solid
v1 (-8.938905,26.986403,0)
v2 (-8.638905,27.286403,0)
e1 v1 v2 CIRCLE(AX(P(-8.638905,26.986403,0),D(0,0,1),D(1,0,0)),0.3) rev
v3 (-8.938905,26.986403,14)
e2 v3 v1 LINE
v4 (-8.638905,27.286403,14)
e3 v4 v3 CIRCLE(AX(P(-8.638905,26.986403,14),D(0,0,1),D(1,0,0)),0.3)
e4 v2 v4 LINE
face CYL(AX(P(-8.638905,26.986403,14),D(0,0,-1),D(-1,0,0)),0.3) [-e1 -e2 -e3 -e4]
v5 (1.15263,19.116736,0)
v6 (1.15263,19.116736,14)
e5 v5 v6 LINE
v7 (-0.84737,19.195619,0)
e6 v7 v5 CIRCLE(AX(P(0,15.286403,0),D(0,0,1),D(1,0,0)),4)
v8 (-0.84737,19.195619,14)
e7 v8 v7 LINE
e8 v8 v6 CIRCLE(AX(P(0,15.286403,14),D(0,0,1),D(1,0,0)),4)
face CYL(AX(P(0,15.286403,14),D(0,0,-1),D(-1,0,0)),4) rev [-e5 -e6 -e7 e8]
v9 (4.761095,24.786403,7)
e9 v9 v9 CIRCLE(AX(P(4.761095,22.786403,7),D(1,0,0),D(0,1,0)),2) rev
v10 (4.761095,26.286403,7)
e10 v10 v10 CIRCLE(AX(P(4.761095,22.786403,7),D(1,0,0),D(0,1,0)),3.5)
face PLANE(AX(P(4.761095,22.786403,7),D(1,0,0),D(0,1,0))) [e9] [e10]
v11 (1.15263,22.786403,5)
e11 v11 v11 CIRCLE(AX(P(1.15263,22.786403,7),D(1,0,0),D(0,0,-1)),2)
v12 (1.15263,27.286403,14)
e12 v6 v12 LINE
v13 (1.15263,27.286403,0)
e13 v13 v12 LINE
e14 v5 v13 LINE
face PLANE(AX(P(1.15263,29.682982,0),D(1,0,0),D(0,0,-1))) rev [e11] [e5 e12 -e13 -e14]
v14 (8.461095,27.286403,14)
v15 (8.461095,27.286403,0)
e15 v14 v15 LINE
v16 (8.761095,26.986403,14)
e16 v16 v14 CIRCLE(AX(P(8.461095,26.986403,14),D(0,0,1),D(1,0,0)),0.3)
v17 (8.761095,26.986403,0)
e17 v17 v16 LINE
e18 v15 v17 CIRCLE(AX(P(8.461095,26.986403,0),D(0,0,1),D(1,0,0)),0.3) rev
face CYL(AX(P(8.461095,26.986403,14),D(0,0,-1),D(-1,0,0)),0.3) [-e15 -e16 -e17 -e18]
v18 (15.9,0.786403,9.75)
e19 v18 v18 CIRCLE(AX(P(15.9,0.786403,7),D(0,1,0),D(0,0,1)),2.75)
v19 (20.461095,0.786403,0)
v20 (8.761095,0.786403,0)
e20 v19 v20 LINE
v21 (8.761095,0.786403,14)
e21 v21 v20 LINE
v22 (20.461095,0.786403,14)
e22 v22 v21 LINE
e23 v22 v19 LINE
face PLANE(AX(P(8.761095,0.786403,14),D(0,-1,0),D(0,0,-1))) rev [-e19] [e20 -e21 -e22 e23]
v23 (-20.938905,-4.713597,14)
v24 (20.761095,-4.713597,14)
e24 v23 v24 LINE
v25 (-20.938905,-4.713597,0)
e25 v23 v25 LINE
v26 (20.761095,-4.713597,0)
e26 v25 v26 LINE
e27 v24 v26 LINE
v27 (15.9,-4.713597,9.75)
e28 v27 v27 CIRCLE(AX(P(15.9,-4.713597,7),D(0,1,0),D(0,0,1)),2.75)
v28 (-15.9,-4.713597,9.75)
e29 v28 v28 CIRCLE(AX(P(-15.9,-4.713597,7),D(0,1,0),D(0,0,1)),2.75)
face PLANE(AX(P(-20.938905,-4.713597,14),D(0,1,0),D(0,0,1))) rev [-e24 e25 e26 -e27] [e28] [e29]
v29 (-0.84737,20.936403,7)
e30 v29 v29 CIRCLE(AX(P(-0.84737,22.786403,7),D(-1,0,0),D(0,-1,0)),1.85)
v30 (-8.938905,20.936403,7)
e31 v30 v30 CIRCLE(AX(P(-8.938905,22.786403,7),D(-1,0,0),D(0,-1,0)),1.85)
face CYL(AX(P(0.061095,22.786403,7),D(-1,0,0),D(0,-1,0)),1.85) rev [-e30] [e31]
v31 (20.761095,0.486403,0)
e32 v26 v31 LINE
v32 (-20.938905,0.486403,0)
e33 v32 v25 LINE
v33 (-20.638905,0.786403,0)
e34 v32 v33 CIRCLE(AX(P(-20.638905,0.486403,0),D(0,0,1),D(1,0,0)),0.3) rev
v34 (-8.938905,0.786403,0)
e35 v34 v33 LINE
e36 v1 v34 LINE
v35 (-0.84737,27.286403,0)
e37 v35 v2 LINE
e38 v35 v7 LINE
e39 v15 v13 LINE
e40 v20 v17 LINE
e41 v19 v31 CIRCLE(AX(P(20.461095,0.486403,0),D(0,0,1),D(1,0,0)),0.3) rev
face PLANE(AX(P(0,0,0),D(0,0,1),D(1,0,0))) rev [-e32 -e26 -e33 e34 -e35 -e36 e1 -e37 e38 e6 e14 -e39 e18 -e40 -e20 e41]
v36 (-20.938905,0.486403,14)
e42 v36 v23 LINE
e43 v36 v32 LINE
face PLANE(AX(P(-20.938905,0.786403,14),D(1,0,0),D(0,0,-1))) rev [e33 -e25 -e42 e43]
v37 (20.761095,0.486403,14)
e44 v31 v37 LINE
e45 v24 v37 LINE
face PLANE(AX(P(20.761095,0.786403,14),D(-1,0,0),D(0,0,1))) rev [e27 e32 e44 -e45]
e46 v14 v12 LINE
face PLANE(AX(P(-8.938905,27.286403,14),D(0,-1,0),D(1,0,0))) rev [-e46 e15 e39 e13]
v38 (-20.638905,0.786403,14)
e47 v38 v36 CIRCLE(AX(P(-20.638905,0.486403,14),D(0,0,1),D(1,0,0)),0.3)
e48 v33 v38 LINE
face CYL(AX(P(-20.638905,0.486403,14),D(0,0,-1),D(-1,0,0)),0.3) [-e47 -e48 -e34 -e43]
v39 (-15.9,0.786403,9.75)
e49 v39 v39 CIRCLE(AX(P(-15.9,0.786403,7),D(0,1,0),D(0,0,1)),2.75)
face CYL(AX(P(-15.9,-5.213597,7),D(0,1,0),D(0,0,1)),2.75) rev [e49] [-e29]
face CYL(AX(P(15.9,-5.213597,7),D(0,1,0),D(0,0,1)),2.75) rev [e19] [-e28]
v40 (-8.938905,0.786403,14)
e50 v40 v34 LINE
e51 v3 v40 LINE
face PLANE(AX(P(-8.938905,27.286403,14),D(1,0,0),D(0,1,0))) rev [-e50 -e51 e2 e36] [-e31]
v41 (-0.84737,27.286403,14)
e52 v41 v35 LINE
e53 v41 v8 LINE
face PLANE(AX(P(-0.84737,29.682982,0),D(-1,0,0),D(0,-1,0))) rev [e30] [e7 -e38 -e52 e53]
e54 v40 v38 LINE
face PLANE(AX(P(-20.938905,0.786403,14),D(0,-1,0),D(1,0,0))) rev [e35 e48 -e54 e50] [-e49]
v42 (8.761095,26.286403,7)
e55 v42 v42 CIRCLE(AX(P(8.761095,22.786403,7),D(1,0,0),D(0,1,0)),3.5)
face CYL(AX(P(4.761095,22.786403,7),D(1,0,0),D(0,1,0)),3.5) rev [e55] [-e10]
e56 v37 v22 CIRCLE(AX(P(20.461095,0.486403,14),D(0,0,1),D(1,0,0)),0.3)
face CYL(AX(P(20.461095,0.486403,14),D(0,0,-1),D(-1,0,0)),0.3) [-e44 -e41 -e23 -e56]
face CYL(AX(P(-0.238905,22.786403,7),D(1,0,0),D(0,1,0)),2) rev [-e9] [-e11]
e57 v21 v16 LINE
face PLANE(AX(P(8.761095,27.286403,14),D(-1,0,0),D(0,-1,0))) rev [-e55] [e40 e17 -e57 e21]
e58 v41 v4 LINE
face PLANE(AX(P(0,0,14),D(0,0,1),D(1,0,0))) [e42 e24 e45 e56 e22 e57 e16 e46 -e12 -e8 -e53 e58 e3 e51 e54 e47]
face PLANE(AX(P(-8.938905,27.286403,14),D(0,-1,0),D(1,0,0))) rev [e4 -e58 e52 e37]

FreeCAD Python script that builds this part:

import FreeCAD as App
import Part
import Sketcher
from FreeCAD import Vector


def edges_at(feature, points):
    """Names of the edges that pass closest to the given points."""
    edges = feature.Shape.Edges
    near = lambda p: min(range(len(edges)), key=lambda i: edges[i].distToShape(Part.Vertex(*p))[0])
    return sorted({f"Edge{near(p) + 1}" for p in points})

doc = App.newDocument("Part")
params = doc.addObject("Spreadsheet::Sheet", "Params")
for row, (alias, value) in enumerate([
    ("sketch1_diameter", "8 mm"),
    ("sketch1_width", "12 mm"),
    ("sketch1_width2", "41.7 mm"),
    ("sketch1_height", "5.5 mm"),
    ("sketch1_height2", "26.5 mm"),
    ("pad1_length", "14 mm"),
    ("sketch2_diameter", "5.5 mm"),
    ("pocket1_length", "6 mm"),
    ("sketch3_width", "2 mm"),
    ("pocket2_length", "14 mm"),
    ("sketch4_diameter", "4 mm"),
    ("pocket3_length", "9 mm"),
    ("sketch5_diameter", "7 mm"),
    ("pocket4_length", "4 mm"),
    ("sketch6_diameter", "3.7 mm"),
    ("pocket5_length", "9 mm"),
    ("fillet_radius", "0.3 mm"),
], start=1):
    params.set(f"A{row}", alias)
    params.set(f"B{row}", "=" + value)
    params.setAlias(f"B{row}", alias)

body = doc.addObject("PartDesign::Body", "Body")

sketch1 = doc.addObject("Sketcher::SketchObject", "Sketch")
body.addObject(sketch1)
sketch1.AttachmentSupport = (doc.XY_Plane, [""])
sketch1.MapMode = "FlatFace"
sketch1.addGeometry(Part.LineSegment(Vector(-8.9, 0.8, 0), Vector(-20.9, 0.8, 0)), False)
sketch1.addGeometry(Part.LineSegment(Vector(-20.9, 0.8, 0), Vector(-20.9, -4.7, 0)), False)
sketch1.addGeometry(Part.LineSegment(Vector(-20.9, -4.7, 0), Vector(20.8, -4.7, 0)), False)
sketch1.addGeometry(Part.LineSegment(Vector(20.8, -4.7, 0), Vector(20.8, 0.8, 0)), False)
sketch1.addGeometry(Part.LineSegment(Vector(20.8, 0.8, 0), Vector(8.8, 0.8, 0)), False)
sketch1.addGeometry(Part.LineSegment(Vector(8.8, 0.8, 0), Vector(8.8, 27.3, 0)), False)
sketch1.addGeometry(Part.LineSegment(Vector(8.8, 27.3, 0), Vector(-8.9, 27.3, 0)), False)
sketch1.addGeometry(Part.LineSegment(Vector(-8.9, 27.3, 0), Vector(-8.9, 0.8, 0)), False)
sketch1.addGeometry(Part.Circle(Vector(0, 15.3, 0), Vector(0, 0, 1), 4), False)
sketch1.addConstraint(Sketcher.Constraint("Coincident", 0, 2, 1, 1))
sketch1.addConstraint(Sketcher.Constraint("Coincident", 1, 2, 2, 1))
sketch1.addConstraint(Sketcher.Constraint("Coincident", 2, 2, 3, 1))
sketch1.addConstraint(Sketcher.Constraint("Coincident", 3, 2, 4, 1))
sketch1.addConstraint(Sketcher.Constraint("Coincident", 4, 2, 5, 1))
sketch1.addConstraint(Sketcher.Constraint("Coincident", 5, 2, 6, 1))
sketch1.addConstraint(Sketcher.Constraint("Coincident", 6, 2, 7, 1))
sketch1.addConstraint(Sketcher.Constraint("Coincident", 7, 2, 0, 1))
sketch1.addConstraint(Sketcher.Constraint("Horizontal", 0))
sketch1.addConstraint(Sketcher.Constraint("Vertical", 1))
sketch1.addConstraint(Sketcher.Constraint("Horizontal", 2))
sketch1.addConstraint(Sketcher.Constraint("Vertical", 3))
sketch1.addConstraint(Sketcher.Constraint("Horizontal", 4))
sketch1.addConstraint(Sketcher.Constraint("Vertical", 5))
sketch1.addConstraint(Sketcher.Constraint("Horizontal", 6))
sketch1.addConstraint(Sketcher.Constraint("Vertical", 7))
sketch1.addConstraint(Sketcher.Constraint("PointOnObject", 8, 3, -2))
sketch1.addConstraint(Sketcher.Constraint("Horizontal", 0, 2, 3, 2))
sketch1.addConstraint(Sketcher.Constraint("Equal", 0, 4))
sketch1.addConstraint(Sketcher.Constraint("Diameter", 8, 8.0))
sketch1.addConstraint(Sketcher.Constraint("DistanceX", 0, 2, 0, 1, 12.0))
sketch1.addConstraint(Sketcher.Constraint("DistanceX", 2, 1, 2, 2, 41.7))
sketch1.addConstraint(Sketcher.Constraint("DistanceY", 1, 2, 1, 1, 5.5))
sketch1.addConstraint(Sketcher.Constraint("DistanceY", 5, 1, 5, 2, 26.5))
sketch1.addConstraint(Sketcher.Constraint("DistanceY", 1, 2, 8, 3, 20.0))
sketch1.addConstraint(Sketcher.Constraint("DistanceY", -1, 1, 8, 3, 15.286403))
sketch1.addConstraint(Sketcher.Constraint("DistanceX", 0, 2, -1, 1, 20.938905))
sketch1.setExpression("Constraints[19]", "Params.sketch1_diameter")
sketch1.setExpression("Constraints[20]", "Params.sketch1_width")
sketch1.setExpression("Constraints[21]", "Params.sketch1_width2")
sketch1.setExpression("Constraints[22]", "Params.sketch1_height")
sketch1.setExpression("Constraints[23]", "Params.sketch1_height2")
pad1 = doc.addObject("PartDesign::Pad", "Pad")
body.addObject(pad1)
pad1.Profile = sketch1
pad1.setExpression("Length", "Params.pad1_length")

sketch2 = doc.addObject("Sketcher::SketchObject", "Sketch001")
body.addObject(sketch2)
sketch2.AttachmentSupport = (doc.XZ_Plane, [""])
sketch2.MapMode = "FlatFace"
sketch2.AttachmentOffset = App.Placement(Vector(0, 0, -0.786403), App.Rotation())
sketch2.addGeometry(Part.Circle(Vector(-15.9, 7, 0), Vector(0, 0, 1), 2.8), False)
sketch2.addGeometry(Part.Circle(Vector(15.9, 7, 0), Vector(0, 0, 1), 2.8), False)
sketch2.addConstraint(Sketcher.Constraint("Equal", 0, 1))
sketch2.addConstraint(Sketcher.Constraint("Symmetric", 0, 3, 1, 3, -2))
sketch2.addConstraint(Sketcher.Constraint("Diameter", 0, 5.5))
sketch2.addConstraint(Sketcher.Constraint("DistanceY", -1, 1, 0, 3, 7.0))
sketch2.addConstraint(Sketcher.Constraint("DistanceX", 0, 3, -1, 1, 15.9))
sketch2.setExpression("Constraints[2]", "Params.sketch2_diameter")
pocket1 = doc.addObject("PartDesign::Pocket", "Pocket")
body.addObject(pocket1)
pocket1.Profile = sketch2
pocket1.setExpression("Length", "Params.pocket1_length")
pocket1.Reversed = True

sketch3 = doc.addObject("Sketcher::SketchObject", "Sketch002")
body.addObject(sketch3)
sketch3.AttachmentSupport = (doc.XY_Plane, [""])
sketch3.MapMode = "FlatFace"
sketch3.AttachmentOffset = App.Placement(Vector(0, 0, 14), App.Rotation())
sketch3.addGeometry(Part.LineSegment(Vector(-0.8, 29.7, 0), Vector(-0.8, 18.1, 0)), False)
sketch3.addGeometry(Part.LineSegment(Vector(-0.8, 18.1, 0), Vector(1.2, 18.1, 0)), False)
sketch3.addGeometry(Part.LineSegment(Vector(1.2, 18.1, 0), Vector(1.2, 29.7, 0)), False)
sketch3.addGeometry(Part.LineSegment(Vector(1.2, 29.7, 0), Vector(-0.8, 29.7, 0)), False)
sketch3.addConstraint(Sketcher.Constraint("Coincident", 0, 2, 1, 1))
sketch3.addConstraint(Sketcher.Constraint("Coincident", 1, 2, 2, 1))
sketch3.addConstraint(Sketcher.Constraint("Coincident", 2, 2, 3, 1))
sketch3.addConstraint(Sketcher.Constraint("Coincident", 3, 2, 0, 1))
sketch3.addConstraint(Sketcher.Constraint("Vertical", 0))
sketch3.addConstraint(Sketcher.Constraint("Horizontal", 1))
sketch3.addConstraint(Sketcher.Constraint("Vertical", 2))
sketch3.addConstraint(Sketcher.Constraint("Horizontal", 3))
sketch3.addConstraint(Sketcher.Constraint("DistanceX", 1, 1, 1, 2, 2.0))
sketch3.addConstraint(Sketcher.Constraint("DistanceY", 0, 2, 0, 1, 11.620769))
sketch3.addConstraint(Sketcher.Constraint("DistanceX", 0, 2, -1, 1, 0.84737))
sketch3.addConstraint(Sketcher.Constraint("DistanceY", -1, 1, 2, 2, 29.682982))
sketch3.setExpression("Constraints[8]", "Params.sketch3_width")
pocket2 = doc.addObject("PartDesign::Pocket", "Pocket001")
body.addObject(pocket2)
pocket2.Profile = sketch3
pocket2.setExpression("Length", "Params.pocket2_length")

sketch4 = doc.addObject("Sketcher::SketchObject", "Sketch003")
body.addObject(sketch4)
sketch4.AttachmentSupport = (doc.YZ_Plane, [""])
sketch4.MapMode = "FlatFace"
sketch4.AttachmentOffset = App.Placement(Vector(0, 0, 8.761095), App.Rotation())
sketch4.addGeometry(Part.Circle(Vector(22.8, 7, 0), Vector(0, 0, 1), 2), False)
sketch4.addConstraint(Sketcher.Constraint("Diameter", 0, 4.0))
sketch4.addConstraint(Sketcher.Constraint("DistanceY", -1, 1, 0, 3, 7.0))
sketch4.addConstraint(Sketcher.Constraint("DistanceX", -1, 1, 0, 3, 22.786403))
sketch4.setExpression("Constraints[0]", "Params.sketch4_diameter")
pocket3 = doc.addObject("PartDesign::Pocket", "Pocket002")
body.addObject(pocket3)
pocket3.Profile = sketch4
pocket3.setExpression("Length", "Params.pocket3_length")

sketch5 = doc.addObject("Sketcher::SketchObject", "Sketch004")
body.addObject(sketch5)
sketch5.AttachmentSupport = (doc.YZ_Plane, [""])
sketch5.MapMode = "FlatFace"
sketch5.AttachmentOffset = App.Placement(Vector(0, 0, 8.761095), App.Rotation())
sketch5.addGeometry(Part.Circle(Vector(22.8, 7, 0), Vector(0, 0, 1), 3.5), False)
sketch5.addConstraint(Sketcher.Constraint("Diameter", 0, 7.0))
sketch5.addConstraint(Sketcher.Constraint("DistanceY", -1, 1, 0, 3, 7.0))
sketch5.addConstraint(Sketcher.Constraint("DistanceX", -1, 1, 0, 3, 22.786403))
sketch5.setExpression("Constraints[0]", "Params.sketch5_diameter")
pocket4 = doc.addObject("PartDesign::Pocket", "Pocket003")
body.addObject(pocket4)
pocket4.Profile = sketch5
pocket4.setExpression("Length", "Params.pocket4_length")

sketch6 = doc.addObject("Sketcher::SketchObject", "Sketch005")
body.addObject(sketch6)
sketch6.AttachmentSupport = (doc.YZ_Plane, [""])
sketch6.MapMode = "FlatFace"
sketch6.AttachmentOffset = App.Placement(Vector(0, 0, -8.938905), App.Rotation())
sketch6.addGeometry(Part.Circle(Vector(22.8, 7, 0), Vector(0, 0, 1), 1.9), False)
sketch6.addConstraint(Sketcher.Constraint("Diameter", 0, 3.7))
sketch6.addConstraint(Sketcher.Constraint("DistanceY", -1, 1, 0, 3, 7.0))
sketch6.addConstraint(Sketcher.Constraint("DistanceX", -1, 1, 0, 3, 22.786403))
sketch6.setExpression("Constraints[0]", "Params.sketch6_diameter")
pocket5 = doc.addObject("PartDesign::Pocket", "Pocket004")
body.addObject(pocket5)
pocket5.Profile = sketch6
pocket5.setExpression("Length", "Params.pocket5_length")
pocket5.Reversed = True
doc.recompute()

fillet = doc.addObject("PartDesign::Fillet", "Fillet")
body.addObject(fillet)
fillet.Base = (pocket5, edges_at(pocket5, [
    (-20.939, 0.786, 7),
    (-8.939, 27.286, 7),
    (8.761, 27.286, 7),
    (20.761, 0.786, 7),
]))
fillet.setExpression("Radius", "Params.fillet_radius")

doc.recompute()
